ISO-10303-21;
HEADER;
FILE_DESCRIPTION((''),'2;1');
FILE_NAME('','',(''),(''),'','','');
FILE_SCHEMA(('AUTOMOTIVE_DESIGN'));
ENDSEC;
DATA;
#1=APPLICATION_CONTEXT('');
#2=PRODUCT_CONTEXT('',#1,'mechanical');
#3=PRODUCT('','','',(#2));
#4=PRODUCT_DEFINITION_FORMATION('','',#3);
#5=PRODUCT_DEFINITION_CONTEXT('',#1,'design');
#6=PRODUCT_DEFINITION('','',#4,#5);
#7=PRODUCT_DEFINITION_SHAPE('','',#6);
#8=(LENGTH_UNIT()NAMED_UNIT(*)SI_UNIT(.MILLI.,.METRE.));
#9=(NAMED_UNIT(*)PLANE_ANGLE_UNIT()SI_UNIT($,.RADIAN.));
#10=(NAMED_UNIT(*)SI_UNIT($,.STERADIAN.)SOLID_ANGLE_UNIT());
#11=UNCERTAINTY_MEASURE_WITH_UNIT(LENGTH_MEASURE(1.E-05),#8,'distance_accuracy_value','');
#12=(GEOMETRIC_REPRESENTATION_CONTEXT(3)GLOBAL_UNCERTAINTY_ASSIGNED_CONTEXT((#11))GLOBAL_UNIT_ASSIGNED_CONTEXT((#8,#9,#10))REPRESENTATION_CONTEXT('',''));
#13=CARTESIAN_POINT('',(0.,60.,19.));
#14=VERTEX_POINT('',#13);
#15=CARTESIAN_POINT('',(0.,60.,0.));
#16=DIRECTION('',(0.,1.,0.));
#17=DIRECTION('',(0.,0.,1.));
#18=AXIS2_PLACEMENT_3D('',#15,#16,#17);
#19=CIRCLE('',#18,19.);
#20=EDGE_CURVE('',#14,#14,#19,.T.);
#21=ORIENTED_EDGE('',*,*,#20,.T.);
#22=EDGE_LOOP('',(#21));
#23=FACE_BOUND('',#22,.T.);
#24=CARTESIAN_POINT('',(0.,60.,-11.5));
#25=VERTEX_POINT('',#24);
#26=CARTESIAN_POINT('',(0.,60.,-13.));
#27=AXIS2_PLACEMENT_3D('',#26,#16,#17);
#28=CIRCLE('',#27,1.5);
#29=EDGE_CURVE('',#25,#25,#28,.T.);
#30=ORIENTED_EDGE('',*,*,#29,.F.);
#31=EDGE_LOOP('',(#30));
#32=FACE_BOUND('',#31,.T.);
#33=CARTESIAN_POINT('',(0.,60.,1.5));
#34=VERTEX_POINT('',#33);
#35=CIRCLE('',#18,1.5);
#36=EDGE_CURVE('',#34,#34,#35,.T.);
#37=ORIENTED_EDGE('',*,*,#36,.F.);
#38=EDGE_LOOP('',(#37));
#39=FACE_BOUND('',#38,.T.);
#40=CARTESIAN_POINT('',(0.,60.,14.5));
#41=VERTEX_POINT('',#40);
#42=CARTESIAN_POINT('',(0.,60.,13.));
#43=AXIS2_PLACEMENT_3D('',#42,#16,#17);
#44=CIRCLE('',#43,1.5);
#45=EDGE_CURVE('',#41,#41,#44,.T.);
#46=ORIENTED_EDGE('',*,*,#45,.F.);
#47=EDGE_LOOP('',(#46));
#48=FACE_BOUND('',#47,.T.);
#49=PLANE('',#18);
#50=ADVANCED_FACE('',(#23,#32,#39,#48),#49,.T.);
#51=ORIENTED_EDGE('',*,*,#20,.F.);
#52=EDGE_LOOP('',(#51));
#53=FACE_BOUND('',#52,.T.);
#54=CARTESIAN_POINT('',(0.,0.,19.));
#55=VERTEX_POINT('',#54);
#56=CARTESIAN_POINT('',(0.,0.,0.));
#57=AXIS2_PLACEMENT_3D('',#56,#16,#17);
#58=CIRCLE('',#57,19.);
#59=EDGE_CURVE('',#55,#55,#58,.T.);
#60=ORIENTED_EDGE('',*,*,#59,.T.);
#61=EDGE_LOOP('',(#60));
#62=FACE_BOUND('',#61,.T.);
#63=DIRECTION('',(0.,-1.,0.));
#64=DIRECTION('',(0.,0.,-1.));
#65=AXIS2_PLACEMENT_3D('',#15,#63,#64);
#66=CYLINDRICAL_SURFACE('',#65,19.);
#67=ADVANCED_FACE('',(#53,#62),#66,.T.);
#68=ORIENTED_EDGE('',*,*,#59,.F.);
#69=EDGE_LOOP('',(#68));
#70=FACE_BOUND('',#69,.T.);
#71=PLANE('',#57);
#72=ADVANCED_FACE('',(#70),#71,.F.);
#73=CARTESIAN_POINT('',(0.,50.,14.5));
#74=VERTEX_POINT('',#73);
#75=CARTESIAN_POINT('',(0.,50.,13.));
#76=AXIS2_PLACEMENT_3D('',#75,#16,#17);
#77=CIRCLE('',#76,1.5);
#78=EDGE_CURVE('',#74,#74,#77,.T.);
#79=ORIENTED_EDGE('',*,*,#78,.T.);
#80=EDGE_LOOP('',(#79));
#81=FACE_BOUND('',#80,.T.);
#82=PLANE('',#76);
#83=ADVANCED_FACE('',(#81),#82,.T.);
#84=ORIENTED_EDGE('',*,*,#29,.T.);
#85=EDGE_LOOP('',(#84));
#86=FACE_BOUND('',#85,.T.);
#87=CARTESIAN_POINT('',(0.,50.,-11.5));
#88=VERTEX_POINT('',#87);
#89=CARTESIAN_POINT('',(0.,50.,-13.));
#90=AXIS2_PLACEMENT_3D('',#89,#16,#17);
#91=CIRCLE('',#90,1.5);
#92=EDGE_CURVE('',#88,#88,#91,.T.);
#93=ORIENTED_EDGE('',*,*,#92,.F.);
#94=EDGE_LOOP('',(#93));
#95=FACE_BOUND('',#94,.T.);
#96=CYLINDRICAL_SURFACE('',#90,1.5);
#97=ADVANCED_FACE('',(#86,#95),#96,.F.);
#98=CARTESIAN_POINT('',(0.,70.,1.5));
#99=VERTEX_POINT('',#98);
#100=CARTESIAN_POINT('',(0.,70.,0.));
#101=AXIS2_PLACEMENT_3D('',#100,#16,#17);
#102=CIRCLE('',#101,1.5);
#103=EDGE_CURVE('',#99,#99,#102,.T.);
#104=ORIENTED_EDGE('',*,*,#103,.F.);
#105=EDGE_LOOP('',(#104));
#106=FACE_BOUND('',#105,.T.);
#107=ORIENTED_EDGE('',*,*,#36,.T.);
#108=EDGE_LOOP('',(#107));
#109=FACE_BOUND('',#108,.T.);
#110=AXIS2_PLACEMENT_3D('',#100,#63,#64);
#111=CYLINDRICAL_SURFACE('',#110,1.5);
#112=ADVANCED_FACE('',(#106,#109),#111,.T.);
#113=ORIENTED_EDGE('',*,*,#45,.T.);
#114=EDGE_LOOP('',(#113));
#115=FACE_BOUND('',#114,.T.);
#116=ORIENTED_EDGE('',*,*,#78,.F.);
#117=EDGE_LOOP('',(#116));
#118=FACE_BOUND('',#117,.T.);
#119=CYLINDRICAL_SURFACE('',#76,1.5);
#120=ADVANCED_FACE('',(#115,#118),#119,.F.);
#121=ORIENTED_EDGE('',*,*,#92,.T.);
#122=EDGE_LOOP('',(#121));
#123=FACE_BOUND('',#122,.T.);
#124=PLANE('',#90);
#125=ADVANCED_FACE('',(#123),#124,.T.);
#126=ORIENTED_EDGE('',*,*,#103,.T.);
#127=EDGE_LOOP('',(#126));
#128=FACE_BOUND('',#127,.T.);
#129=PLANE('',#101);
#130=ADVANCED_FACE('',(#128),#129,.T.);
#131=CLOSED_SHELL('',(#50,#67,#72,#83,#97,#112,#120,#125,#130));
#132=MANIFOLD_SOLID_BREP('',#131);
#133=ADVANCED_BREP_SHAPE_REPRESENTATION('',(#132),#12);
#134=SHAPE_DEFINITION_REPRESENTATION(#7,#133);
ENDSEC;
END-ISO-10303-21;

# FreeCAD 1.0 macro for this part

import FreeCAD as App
import Part
import Sketcher
Q = App.Units.Quantity

doc = App.newDocument("Part")
body = doc.addObject("PartDesign::Body", "Body")

sketch1 = doc.addObject("Sketcher::SketchObject", "Sketch")
body.addObject(sketch1)
sketch1.AttachmentSupport = (doc.XZ_Plane, [""])
sketch1.MapMode = "FlatFace"
sketch1.addGeometry(Part.Circle(App.Vector(0, 0, 0), App.Vector(0, 0, 1), 19), False)
sketch1.addConstraint([
    Sketcher.Constraint("Coincident", 0, 3, -1, 1),
    Sketcher.Constraint("Diameter", 0, Q("38 mm")),
])
pad1 = doc.addObject("PartDesign::Pad", "Pad")
body.addObject(pad1)
pad1.Profile = sketch1
pad1.Length = 60
pad1.Reversed = True

sketch2 = doc.addObject("Sketcher::SketchObject", "Sketch001")
body.addObject(sketch2)
sketch2.AttachmentSupport = (doc.XZ_Plane, [""])
sketch2.MapMode = "FlatFace"
sketch2.AttachmentOffset = App.Placement(App.Vector(0, 0, -60), App.Rotation())
sketch2.addGeometry(Part.Circle(App.Vector(0, 0, 0), App.Vector(0, 0, 1), 1.5), False)
sketch2.addConstraint([
    Sketcher.Constraint("Coincident", 0, 3, -1, 1),
    Sketcher.Constraint("Diameter", 0, Q("3 mm")),
])
pad2 = doc.addObject("PartDesign::Pad", "Pad001")
body.addObject(pad2)
pad2.Profile = sketch2
pad2.Length = 10
pad2.Reversed = True

sketch3 = doc.addObject("Sketcher::SketchObject", "Sketch002")
body.addObject(sketch3)
sketch3.AttachmentSupport = (doc.XZ_Plane, [""])
sketch3.MapMode = "FlatFace"
sketch3.AttachmentOffset = App.Placement(App.Vector(0, 0, -60), App.Rotation())
sketch3.addGeometry([
    Part.Circle(App.Vector(0, 13, 0), App.Vector(0, 0, 1), 1.5),
    Part.Circle(App.Vector(0, -13, 0), App.Vector(0, 0, 1), 1.5),
], False)
sketch3.addConstraint([
    Sketcher.Constraint("Equal", 0, 1),
    Sketcher.Constraint("Symmetric", 0, 3, 1, 3, -1, 1),
    Sketcher.Constraint("PointOnObject", 0, 3, -2),
    Sketcher.Constraint("Diameter", 0, Q("3 mm")),
    Sketcher.Constraint("DistanceY", -1, 1, 0, 3, Q("13 mm")),
])
pocket1 = doc.addObject("PartDesign::Pocket", "Pocket")
body.addObject(pocket1)
pocket1.Profile = sketch3
pocket1.Length = 10
pocket1.Reversed = True

doc.recompute()
